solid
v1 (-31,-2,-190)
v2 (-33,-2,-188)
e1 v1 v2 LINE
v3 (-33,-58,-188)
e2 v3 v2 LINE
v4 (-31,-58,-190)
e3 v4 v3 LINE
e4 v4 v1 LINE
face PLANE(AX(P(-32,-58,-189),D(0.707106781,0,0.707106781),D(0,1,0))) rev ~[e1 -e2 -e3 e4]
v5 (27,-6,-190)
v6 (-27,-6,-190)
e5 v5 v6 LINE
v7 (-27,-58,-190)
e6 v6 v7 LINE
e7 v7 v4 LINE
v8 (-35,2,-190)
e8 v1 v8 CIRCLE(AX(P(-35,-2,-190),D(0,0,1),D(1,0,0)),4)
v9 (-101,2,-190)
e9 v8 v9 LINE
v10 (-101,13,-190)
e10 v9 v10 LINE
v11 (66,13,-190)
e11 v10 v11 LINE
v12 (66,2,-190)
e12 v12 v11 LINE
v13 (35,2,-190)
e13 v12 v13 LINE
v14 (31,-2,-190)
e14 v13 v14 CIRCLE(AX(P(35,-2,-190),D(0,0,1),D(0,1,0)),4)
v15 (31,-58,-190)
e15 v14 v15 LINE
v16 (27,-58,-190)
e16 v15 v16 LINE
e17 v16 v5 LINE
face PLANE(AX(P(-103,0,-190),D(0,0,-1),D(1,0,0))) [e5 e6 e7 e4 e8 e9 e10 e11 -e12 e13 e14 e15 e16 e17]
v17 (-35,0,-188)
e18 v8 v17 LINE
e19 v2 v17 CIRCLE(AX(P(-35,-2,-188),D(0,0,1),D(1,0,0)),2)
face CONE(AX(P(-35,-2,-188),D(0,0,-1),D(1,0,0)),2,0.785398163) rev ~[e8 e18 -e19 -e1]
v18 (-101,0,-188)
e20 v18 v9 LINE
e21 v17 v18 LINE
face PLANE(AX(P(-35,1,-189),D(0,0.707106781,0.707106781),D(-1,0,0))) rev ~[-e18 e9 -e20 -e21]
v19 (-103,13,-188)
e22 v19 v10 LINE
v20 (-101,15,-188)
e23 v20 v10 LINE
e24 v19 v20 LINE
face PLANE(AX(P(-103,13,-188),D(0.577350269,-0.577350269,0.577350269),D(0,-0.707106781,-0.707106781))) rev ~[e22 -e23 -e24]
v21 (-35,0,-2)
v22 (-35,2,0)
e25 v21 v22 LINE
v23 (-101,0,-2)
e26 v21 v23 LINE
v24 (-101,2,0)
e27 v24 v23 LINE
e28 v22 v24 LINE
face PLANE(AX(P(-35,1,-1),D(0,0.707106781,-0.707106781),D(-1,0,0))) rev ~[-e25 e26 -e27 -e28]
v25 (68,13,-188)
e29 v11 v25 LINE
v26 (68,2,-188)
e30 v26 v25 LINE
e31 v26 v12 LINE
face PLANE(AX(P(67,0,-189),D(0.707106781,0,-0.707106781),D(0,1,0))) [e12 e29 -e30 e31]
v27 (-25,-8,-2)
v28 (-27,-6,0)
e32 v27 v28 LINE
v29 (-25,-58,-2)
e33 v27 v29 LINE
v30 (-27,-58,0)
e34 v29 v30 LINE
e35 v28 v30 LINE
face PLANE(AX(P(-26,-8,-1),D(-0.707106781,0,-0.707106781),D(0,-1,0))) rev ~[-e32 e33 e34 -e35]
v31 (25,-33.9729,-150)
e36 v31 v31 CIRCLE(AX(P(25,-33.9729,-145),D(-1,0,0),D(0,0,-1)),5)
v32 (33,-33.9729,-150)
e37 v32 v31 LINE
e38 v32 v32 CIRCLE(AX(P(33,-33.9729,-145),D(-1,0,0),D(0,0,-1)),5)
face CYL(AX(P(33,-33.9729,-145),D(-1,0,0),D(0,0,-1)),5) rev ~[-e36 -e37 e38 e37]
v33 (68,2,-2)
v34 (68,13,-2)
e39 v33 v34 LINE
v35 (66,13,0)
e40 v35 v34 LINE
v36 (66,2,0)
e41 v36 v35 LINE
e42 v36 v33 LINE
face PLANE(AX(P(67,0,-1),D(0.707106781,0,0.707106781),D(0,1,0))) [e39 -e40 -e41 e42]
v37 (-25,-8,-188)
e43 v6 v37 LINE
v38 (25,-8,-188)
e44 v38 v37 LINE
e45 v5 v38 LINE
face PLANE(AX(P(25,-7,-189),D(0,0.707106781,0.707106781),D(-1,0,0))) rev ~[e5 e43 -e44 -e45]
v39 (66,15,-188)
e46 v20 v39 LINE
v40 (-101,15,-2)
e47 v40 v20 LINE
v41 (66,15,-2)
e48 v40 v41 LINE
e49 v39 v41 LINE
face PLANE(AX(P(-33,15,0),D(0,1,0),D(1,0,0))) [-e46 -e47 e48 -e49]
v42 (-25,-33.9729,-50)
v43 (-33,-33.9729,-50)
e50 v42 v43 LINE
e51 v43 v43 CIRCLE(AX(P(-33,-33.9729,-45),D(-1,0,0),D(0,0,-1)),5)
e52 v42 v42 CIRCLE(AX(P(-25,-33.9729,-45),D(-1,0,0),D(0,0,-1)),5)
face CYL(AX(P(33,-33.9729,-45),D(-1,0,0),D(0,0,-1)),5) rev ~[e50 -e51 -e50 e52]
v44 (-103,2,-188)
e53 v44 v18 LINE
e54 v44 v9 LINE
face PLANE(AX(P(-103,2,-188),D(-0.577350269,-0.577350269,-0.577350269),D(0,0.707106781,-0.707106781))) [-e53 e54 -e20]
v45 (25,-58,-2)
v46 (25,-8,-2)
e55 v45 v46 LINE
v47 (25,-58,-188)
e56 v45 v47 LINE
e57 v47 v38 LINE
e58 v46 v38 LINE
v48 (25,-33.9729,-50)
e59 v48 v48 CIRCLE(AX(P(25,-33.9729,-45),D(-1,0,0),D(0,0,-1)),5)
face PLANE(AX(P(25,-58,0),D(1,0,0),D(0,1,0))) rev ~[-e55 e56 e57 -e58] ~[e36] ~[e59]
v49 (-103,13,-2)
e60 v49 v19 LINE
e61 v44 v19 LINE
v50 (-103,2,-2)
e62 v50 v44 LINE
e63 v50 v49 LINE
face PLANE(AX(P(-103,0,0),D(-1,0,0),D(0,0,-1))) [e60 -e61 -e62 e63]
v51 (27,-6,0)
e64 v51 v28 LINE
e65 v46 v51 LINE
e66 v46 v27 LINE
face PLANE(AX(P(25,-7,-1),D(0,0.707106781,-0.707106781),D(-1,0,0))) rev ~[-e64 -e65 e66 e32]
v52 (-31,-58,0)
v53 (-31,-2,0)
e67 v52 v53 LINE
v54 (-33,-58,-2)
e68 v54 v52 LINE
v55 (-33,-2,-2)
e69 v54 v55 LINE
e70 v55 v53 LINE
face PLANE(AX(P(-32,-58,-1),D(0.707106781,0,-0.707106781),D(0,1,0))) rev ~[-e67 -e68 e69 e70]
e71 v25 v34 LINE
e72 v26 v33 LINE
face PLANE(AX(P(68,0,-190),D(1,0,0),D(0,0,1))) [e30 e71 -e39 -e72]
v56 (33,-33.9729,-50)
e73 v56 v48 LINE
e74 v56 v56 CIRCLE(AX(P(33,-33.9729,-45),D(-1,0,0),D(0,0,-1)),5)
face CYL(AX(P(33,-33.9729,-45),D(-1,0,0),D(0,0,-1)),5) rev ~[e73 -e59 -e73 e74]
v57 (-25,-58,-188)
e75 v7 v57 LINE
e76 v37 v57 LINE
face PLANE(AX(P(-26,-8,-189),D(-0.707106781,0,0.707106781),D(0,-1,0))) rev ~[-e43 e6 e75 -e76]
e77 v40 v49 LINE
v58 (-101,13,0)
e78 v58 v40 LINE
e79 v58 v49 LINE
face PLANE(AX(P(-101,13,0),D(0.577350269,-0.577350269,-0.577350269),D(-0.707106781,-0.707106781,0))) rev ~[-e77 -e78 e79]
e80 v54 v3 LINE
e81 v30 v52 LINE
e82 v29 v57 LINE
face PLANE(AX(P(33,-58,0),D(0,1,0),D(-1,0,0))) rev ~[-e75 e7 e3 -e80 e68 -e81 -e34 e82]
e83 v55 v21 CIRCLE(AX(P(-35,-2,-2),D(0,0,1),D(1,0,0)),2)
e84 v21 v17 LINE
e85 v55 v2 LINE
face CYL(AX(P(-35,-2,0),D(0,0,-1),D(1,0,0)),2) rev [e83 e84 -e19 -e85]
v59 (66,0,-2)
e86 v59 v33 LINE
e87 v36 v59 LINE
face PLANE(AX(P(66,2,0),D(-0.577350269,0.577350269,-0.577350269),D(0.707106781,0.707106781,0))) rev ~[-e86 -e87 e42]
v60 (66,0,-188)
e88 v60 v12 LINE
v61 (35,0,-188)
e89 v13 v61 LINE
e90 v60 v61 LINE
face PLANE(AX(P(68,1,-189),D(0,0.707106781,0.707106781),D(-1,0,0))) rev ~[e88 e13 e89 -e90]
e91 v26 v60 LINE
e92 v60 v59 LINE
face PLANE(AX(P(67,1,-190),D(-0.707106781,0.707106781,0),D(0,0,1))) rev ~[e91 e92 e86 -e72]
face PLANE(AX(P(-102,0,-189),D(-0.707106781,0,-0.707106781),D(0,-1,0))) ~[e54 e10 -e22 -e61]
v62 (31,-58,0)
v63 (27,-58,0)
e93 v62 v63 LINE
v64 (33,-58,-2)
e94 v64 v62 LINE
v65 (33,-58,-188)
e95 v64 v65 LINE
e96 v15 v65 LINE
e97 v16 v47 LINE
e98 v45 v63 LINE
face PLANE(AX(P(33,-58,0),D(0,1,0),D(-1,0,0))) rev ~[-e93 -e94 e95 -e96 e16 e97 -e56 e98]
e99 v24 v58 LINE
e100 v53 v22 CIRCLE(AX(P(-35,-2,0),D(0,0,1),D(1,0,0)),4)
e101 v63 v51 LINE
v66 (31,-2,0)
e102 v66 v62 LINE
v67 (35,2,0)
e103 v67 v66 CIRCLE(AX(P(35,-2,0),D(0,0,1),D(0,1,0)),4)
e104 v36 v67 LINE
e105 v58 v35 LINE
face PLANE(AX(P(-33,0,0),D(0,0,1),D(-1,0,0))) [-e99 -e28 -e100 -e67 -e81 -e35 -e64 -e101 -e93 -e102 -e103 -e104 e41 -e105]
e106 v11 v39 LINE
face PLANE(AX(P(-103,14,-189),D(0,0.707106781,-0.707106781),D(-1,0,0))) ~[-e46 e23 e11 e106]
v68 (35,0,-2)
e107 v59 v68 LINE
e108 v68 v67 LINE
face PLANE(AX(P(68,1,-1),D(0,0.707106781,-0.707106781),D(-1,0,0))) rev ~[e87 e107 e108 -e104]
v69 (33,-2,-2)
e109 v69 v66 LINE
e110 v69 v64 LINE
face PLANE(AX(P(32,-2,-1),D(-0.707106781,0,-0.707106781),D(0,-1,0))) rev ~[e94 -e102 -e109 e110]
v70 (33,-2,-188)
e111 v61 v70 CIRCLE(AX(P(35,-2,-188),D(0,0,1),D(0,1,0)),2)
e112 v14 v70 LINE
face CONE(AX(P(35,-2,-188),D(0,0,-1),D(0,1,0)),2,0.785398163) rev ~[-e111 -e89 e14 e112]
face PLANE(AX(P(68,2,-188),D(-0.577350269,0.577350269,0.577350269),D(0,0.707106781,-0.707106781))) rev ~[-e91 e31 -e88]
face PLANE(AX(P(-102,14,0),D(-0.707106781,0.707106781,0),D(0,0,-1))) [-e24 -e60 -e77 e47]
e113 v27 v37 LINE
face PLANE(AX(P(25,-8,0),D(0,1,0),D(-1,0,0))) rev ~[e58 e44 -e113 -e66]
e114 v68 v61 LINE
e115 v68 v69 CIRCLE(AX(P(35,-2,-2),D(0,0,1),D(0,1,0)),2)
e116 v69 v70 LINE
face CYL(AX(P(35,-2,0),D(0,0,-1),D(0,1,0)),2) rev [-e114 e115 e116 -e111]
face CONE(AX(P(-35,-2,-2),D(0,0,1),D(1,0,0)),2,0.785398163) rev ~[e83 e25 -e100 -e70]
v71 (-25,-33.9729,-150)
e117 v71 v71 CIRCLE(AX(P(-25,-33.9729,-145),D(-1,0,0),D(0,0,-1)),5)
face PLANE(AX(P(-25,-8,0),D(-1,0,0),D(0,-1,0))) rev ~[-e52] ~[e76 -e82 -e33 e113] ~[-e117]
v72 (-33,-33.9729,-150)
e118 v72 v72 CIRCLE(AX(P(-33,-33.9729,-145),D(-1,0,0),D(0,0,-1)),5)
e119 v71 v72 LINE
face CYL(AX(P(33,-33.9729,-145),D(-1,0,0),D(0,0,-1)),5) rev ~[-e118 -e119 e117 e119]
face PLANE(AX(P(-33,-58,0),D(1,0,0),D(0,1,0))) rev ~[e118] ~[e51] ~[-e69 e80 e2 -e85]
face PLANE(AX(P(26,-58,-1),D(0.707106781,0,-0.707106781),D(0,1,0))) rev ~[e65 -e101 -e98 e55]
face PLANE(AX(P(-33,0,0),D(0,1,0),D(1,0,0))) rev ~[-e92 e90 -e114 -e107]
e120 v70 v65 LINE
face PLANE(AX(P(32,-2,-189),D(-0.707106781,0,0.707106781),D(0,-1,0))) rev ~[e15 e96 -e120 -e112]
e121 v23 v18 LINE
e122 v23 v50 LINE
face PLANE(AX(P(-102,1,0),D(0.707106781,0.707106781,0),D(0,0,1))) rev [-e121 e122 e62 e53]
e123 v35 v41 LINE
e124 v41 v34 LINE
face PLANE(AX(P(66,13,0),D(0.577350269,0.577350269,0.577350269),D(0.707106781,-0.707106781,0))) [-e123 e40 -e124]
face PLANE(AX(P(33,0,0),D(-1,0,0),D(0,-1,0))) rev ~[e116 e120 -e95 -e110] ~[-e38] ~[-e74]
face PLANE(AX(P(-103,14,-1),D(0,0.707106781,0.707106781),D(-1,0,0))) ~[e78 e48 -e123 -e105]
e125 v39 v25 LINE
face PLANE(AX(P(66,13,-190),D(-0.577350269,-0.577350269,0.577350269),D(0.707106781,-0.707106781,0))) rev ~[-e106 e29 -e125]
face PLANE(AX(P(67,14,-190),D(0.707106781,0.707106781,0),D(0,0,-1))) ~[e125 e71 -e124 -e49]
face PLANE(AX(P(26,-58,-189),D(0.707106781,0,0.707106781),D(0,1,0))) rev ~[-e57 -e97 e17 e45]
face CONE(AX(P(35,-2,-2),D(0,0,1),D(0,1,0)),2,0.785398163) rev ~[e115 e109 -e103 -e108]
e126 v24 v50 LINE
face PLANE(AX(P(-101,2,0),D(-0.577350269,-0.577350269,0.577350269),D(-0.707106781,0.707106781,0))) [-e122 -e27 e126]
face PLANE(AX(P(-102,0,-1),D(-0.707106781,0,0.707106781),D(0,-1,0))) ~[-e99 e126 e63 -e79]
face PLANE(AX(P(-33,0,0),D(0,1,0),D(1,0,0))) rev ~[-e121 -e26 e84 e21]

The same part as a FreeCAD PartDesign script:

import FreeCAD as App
import Part
import Sketcher


def edges_at(feature, points):
    """Names of the edges that pass closest to the given points."""
    edges = feature.Shape.Edges
    near = lambda p: min(range(len(edges)), key=lambda i: edges[i].distToShape(Part.Vertex(*p))[0])
    return sorted({f"Edge{near(p) + 1}" for p in points})

doc = App.newDocument("Part")
body = doc.addObject("PartDesign::Body", "Body")

# Sketch on XY plane
sketch1 = body.newObject("Sketcher::SketchObject", "Sketch")
sketch1.AttachmentSupport = (doc.getObject("XY_Plane"), [""])
sketch1.MapMode = "FlatFace"
sketch1.addGeometry([
    Part.LineSegment(App.Vector(33, 0, 0), App.Vector(-33, 0, 0)),
    Part.LineSegment(App.Vector(-33, 0, 0), App.Vector(-33, -58, 0)),
    Part.LineSegment(App.Vector(-33, -58, 0), App.Vector(33, -58, 0)),
    Part.LineSegment(App.Vector(33, -58, 0), App.Vector(33, 0, 0)),
], False)
sketch1.addConstraint([
    Sketcher.Constraint("Coincident", 0, 2, 1, 1),
    Sketcher.Constraint("Coincident", 1, 2, 2, 1),
    Sketcher.Constraint("Coincident", 2, 2, 3, 1),
    Sketcher.Constraint("Coincident", 3, 2, 0, 1),
    Sketcher.Constraint("Horizontal", 0),
    Sketcher.Constraint("Vertical", 1),
    Sketcher.Constraint("Horizontal", 2),
    Sketcher.Constraint("Vertical", 3),
    Sketcher.Constraint("Symmetric", 0, 2, 3, 2, -1, 1),
    Sketcher.Constraint("DistanceX", 0, 2, 0, 1, 66.0),
    Sketcher.Constraint("DistanceY", 1, 2, 1, 1, 58.0),
])
pad1 = body.newObject("PartDesign::Pad", "Pad")
pad1.Profile = sketch1
pad1.Length = 190
pad1.Reversed = True

# Sketch on XY plane
sketch2 = body.newObject("Sketcher::SketchObject", "Sketch001")
sketch2.AttachmentSupport = (doc.getObject("XY_Plane"), [""])
sketch2.MapMode = "FlatFace"
sketch2.addGeometry([
    Part.LineSegment(App.Vector(-25, -8, 0), App.Vector(-25, -58, 0)),
    Part.LineSegment(App.Vector(-25, -58, 0), App.Vector(25, -58, 0)),
    Part.LineSegment(App.Vector(25, -58, 0), App.Vector(25, -8, 0)),
    Part.LineSegment(App.Vector(25, -8, 0), App.Vector(-25, -8, 0)),
], False)
sketch2.addConstraint([
    Sketcher.Constraint("Coincident", 0, 2, 1, 1),
    Sketcher.Constraint("Coincident", 1, 2, 2, 1),
    Sketcher.Constraint("Coincident", 2, 2, 3, 1),
    Sketcher.Constraint("Coincident", 3, 2, 0, 1),
    Sketcher.Constraint("Vertical", 0),
    Sketcher.Constraint("Horizontal", 1),
    Sketcher.Constraint("Vertical", 2),
    Sketcher.Constraint("Horizontal", 3),
    Sketcher.Constraint("Equal", 3, 0),
    Sketcher.Constraint("DistanceX", 1, 1, 1, 2, 50.0),
    Sketcher.Constraint("DistanceX", 0, 2, -1, 1, 25.0),
    Sketcher.Constraint("DistanceY", 0, 2, -1, 1, 58.0),
])
pocket1 = body.newObject("PartDesign::Pocket", "Pocket")
pocket1.Profile = sketch2
pocket1.Type = "ThroughAll"

# Sketch on XZ plane
sketch3 = body.newObject("Sketcher::SketchObject", "Sketch002")
sketch3.AttachmentSupport = (doc.getObject("XZ_Plane"), [""])
sketch3.MapMode = "FlatFace"
sketch3.addGeometry([
    Part.LineSegment(App.Vector(-103, -190, 0), App.Vector(-103, 0, 0)),
    Part.LineSegment(App.Vector(-103, 0, 0), App.Vector(68, 0, 0)),
    Part.LineSegment(App.Vector(68, 0, 0), App.Vector(68, -190, 0)),
    Part.LineSegment(App.Vector(68, -190, 0), App.Vector(-103, -190, 0)),
], False)
sketch3.addConstraint([
    Sketcher.Constraint("Coincident", 0, 2, 1, 1),
    Sketcher.Constraint("Coincident", 1, 2, 2, 1),
    Sketcher.Constraint("Coincident", 2, 2, 3, 1),
    Sketcher.Constraint("Coincident", 3, 2, 0, 1),
    Sketcher.Constraint("Vertical", 0),
    Sketcher.Constraint("Horizontal", 1),
    Sketcher.Constraint("Vertical", 2),
    Sketcher.Constraint("Horizontal", 3),
    Sketcher.Constraint("PointOnObject", 0, 2, -1),
    Sketcher.Constraint("DistanceX", 1, 1, 1, 2, 171.0),
    Sketcher.Constraint("DistanceY", 0, 1, 0, 2, 190.0),
    Sketcher.Constraint("DistanceX", 0, 2, -1, 1, 103.0),
])
pad2 = body.newObject("PartDesign::Pad", "Pad001")
pad2.Profile = sketch3
pad2.Length = 15
pad2.Reversed = True

# Sketch on YZ plane
sketch4 = body.newObject("Sketcher::SketchObject", "Sketch003")
sketch4.AttachmentSupport = (doc.getObject("YZ_Plane"), [""])
sketch4.MapMode = "FlatFace"
sketch4.AttachmentOffset = App.Placement(App.Vector(0, 0, 33), App.Rotation())
sketch4.addGeometry([
    Part.Circle(App.Vector(-34, -45, 0), App.Vector(0, 0, 1), 5),
    Part.Circle(App.Vector(-34, -145, 0), App.Vector(0, 0, 1), 5),
], False)
sketch4.addConstraint([
    Sketcher.Constraint("Equal", 0, 1),
    Sketcher.Constraint("Vertical", 0, 3, 1, 3),
    Sketcher.Constraint("Diameter", 0, 10.0),
    Sketcher.Constraint("DistanceY", 0, 3, -1, 1, 45.0),
    Sketcher.Constraint("DistanceY", 1, 3, -1, 1, 145.0),
    Sketcher.Constraint("DistanceX", 0, 3, -1, 1, 33.973),
])
doc.recompute()
hole = body.newObject("PartDesign::Hole", "Hole")
hole.Profile = sketch4
hole.ThreadType = "None"
hole.Diameter = 10
hole.DepthType = "ThroughAll"
doc.recompute()

fillet = body.newObject("PartDesign::Fillet", "Fillet")
fillet.Base = (hole, edges_at(hole, [(33, 0, -95), (-33, 0, -95)]))
fillet.Radius = 2
doc.recompute()

chamfer = body.newObject("PartDesign::Chamfer", "Chamfer")
chamfer.Base = (fillet, edges_at(fillet, [
    (68, 15, -95),
    (-17.5, 15, -190),
    (-103, 15, -95),
    (-17.5, 15, 0),
    (51.5, 0, -190),
    (33, -30, -190),
    (68, 0, -95),
    (51.5, 0, 0),
    (33, -30, 0),
    (-33, -30, -190),
    (-69, 0, -190),
    (-103, 0, -95),
    (-69, 0, 0),
    (-33, -30, 0),
    (68, 7.5, -190),
    (-103, 7.5, -190),
    (-103, 7.5, 0),
    (68, 7.5, 0),
    (0, -8, -190),
    (25, -33, -190),
    (-25, -33, -190),
    (0, -8, 0),
    (-25, -33, 0),
    (25, -33, 0),
]))
chamfer.Size = 2

doc.recompute()
